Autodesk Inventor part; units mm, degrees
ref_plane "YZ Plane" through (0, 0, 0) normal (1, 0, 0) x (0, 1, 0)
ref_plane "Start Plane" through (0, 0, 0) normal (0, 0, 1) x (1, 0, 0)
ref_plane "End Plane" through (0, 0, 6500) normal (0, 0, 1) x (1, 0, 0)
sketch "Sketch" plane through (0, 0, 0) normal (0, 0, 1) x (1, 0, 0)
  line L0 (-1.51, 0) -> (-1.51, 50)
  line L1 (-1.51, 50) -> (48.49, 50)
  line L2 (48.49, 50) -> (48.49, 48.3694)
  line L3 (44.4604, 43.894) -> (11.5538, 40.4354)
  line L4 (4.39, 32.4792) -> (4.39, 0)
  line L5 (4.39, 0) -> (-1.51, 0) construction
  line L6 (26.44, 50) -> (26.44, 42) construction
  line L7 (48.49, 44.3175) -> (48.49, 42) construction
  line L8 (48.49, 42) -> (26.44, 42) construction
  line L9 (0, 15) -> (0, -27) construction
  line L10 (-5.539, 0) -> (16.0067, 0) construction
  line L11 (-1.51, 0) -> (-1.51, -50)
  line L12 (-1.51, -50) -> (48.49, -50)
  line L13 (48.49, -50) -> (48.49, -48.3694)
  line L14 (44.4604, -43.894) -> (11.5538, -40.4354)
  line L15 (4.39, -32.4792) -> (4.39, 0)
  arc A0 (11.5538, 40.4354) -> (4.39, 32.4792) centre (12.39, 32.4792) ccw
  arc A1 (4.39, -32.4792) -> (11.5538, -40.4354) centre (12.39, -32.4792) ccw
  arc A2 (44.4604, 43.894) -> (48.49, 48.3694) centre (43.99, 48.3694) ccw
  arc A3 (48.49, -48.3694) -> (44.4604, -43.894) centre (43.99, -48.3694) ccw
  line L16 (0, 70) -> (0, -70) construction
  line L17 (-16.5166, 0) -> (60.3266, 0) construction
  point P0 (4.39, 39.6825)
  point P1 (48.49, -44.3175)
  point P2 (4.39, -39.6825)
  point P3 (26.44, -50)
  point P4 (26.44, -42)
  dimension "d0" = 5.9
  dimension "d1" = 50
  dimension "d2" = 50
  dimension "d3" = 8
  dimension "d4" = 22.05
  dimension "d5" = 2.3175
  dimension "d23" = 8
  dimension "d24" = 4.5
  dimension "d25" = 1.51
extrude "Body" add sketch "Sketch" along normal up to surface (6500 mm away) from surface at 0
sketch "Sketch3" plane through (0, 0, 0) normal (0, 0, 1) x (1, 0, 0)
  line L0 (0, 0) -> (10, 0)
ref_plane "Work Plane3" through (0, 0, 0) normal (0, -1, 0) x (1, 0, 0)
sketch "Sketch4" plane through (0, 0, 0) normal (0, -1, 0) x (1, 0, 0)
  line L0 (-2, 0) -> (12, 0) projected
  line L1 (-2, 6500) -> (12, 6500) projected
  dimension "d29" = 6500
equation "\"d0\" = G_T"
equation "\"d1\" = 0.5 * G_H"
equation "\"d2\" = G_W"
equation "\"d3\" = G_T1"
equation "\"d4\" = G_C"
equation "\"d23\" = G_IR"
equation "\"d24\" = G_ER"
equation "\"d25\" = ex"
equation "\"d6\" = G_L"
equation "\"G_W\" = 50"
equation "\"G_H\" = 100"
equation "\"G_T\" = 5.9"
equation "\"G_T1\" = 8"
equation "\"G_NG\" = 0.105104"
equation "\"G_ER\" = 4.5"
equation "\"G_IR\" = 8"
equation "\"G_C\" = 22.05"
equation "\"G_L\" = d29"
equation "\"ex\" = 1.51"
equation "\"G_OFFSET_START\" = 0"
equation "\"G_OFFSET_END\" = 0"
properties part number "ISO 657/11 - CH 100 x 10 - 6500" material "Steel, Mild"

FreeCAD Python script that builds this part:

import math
import FreeCAD as App
import Part
import Sketcher

V = App.Vector
Q = App.Units.Quantity

doc = App.newDocument("Part")
body = doc.addObject("PartDesign::Body", "Body")

sketch1 = body.newObject("Sketcher::SketchObject", "Sketch")
sketch1.AttachmentSupport = (doc.getObject("XY_Plane"), [""])
sketch1.MapMode = "FlatFace"
sketch1.addGeometry(Part.LineSegment(V(-1.51, 50, 0), V(-1.51, -50, 0)), False)
sketch1.addGeometry(Part.LineSegment(V(-1.51, -50, 0), V(48.49, -50, 0)), False)
sketch1.addGeometry(Part.LineSegment(V(48.49, -50, 0), V(48.49, -48.3694, 0)), False)
sketch1.addGeometry(Part.ArcOfCircle(Part.Circle(V(43.99, -48.3694, 0), V(0, 0, 1), 4.5), math.radians(0), math.radians(83.999791)), False)
sketch1.addGeometry(Part.LineSegment(V(44.4604, -43.894, 0), V(11.5538, -40.4354, 0)), False)
sketch1.addGeometry(Part.ArcOfCircle(Part.Circle(V(12.39, -32.4792, 0), V(0, 0, 1), 8), math.radians(180), math.radians(264.000216)), False)
sketch1.addGeometry(Part.LineSegment(V(4.39, -32.4792, 0), V(4.39, 32.4792, 0)), False)
sketch1.addGeometry(Part.ArcOfCircle(Part.Circle(V(12.39, 32.4792, 0), V(0, 0, 1), 8.000022), math.radians(95.999784), math.radians(180)), False)
sketch1.addGeometry(Part.LineSegment(V(11.5538, 40.4354, 0), V(44.4604, 43.894, 0)), False)
sketch1.addGeometry(Part.ArcOfCircle(Part.Circle(V(43.99, 48.3694, 0), V(0, 0, 1), 4.500053), math.radians(-83.999791), math.radians(0)), False)
sketch1.addGeometry(Part.LineSegment(V(48.49, 48.3694, 0), V(48.49, 50, 0)), False)
sketch1.addGeometry(Part.LineSegment(V(48.49, 50, 0), V(-1.51, 50, 0)), False)
sketch1.addConstraint(Sketcher.Constraint("Coincident", 0, 2, 1, 1))
sketch1.addConstraint(Sketcher.Constraint("Coincident", 1, 2, 2, 1))
sketch1.addConstraint(Sketcher.Constraint("Tangent", 2, 2, 3, 1))
sketch1.addConstraint(Sketcher.Constraint("Tangent", 3, 2, 4, 1))
sketch1.addConstraint(Sketcher.Constraint("Tangent", 4, 2, 5, 2))
sketch1.addConstraint(Sketcher.Constraint("Tangent", 5, 1, 6, 1))
sketch1.addConstraint(Sketcher.Constraint("Tangent", 6, 2, 7, 2))
sketch1.addConstraint(Sketcher.Constraint("Tangent", 7, 1, 8, 1))
sketch1.addConstraint(Sketcher.Constraint("Tangent", 8, 2, 9, 1))
sketch1.addConstraint(Sketcher.Constraint("Tangent", 9, 2, 10, 1))
sketch1.addConstraint(Sketcher.Constraint("Coincident", 10, 2, 11, 1))
sketch1.addConstraint(Sketcher.Constraint("Coincident", 11, 2, 0, 1))
sketch1.addConstraint(Sketcher.Constraint("Vertical", 0))
sketch1.addConstraint(Sketcher.Constraint("Horizontal", 1))
sketch1.addConstraint(Sketcher.Constraint("Vertical", 2))
sketch1.addConstraint(Sketcher.Constraint("Vertical", 6))
sketch1.addConstraint(Sketcher.Constraint("Vertical", 10))
sketch1.addConstraint(Sketcher.Constraint("Horizontal", 11))
sketch1.addConstraint(Sketcher.Constraint("Equal", 5, 7))
sketch1.addConstraint(Sketcher.Constraint("Equal", 3, 9))
sketch1.addConstraint(Sketcher.Constraint("Symmetric", 3, 3, 9, 3, -1))
sketch1.addConstraint(Sketcher.Constraint("Vertical", 4, 2, 7, 1))
sketch1.addConstraint(Sketcher.Constraint("Equal", 2, 10))
sketch1.addConstraint(Sketcher.Constraint("Radius", 5, Q("8 mm")))
sketch1.addConstraint(Sketcher.Constraint("Radius", 3, Q("4.5 mm")))
sketch1.addConstraint(Sketcher.Constraint("DistanceX", 1, 1, 1, 2, Q("50 mm")))
sketch1.addConstraint(Sketcher.Constraint("DistanceY", 0, 2, -1, 1, Q("50 mm")))
sketch1.addConstraint(Sketcher.Constraint("DistanceX", 0, 2, 5, 1, Q("5.9 mm")))
sketch1.addConstraint(Sketcher.Constraint("DistanceX", 0, 2, -1, 1, Q("1.51 mm")))
sketch1.addConstraint(Sketcher.Constraint("Angle", 4, Q("174 deg")))
sketch1.addConstraint(Sketcher.Constraint("DistanceY", 2, 1, 2, 2, Q("1.6306 mm")))
pad1 = body.newObject("PartDesign::Pad", "Pad")
pad1.Profile = sketch1
pad1.Length = 6500

doc.recompute()
